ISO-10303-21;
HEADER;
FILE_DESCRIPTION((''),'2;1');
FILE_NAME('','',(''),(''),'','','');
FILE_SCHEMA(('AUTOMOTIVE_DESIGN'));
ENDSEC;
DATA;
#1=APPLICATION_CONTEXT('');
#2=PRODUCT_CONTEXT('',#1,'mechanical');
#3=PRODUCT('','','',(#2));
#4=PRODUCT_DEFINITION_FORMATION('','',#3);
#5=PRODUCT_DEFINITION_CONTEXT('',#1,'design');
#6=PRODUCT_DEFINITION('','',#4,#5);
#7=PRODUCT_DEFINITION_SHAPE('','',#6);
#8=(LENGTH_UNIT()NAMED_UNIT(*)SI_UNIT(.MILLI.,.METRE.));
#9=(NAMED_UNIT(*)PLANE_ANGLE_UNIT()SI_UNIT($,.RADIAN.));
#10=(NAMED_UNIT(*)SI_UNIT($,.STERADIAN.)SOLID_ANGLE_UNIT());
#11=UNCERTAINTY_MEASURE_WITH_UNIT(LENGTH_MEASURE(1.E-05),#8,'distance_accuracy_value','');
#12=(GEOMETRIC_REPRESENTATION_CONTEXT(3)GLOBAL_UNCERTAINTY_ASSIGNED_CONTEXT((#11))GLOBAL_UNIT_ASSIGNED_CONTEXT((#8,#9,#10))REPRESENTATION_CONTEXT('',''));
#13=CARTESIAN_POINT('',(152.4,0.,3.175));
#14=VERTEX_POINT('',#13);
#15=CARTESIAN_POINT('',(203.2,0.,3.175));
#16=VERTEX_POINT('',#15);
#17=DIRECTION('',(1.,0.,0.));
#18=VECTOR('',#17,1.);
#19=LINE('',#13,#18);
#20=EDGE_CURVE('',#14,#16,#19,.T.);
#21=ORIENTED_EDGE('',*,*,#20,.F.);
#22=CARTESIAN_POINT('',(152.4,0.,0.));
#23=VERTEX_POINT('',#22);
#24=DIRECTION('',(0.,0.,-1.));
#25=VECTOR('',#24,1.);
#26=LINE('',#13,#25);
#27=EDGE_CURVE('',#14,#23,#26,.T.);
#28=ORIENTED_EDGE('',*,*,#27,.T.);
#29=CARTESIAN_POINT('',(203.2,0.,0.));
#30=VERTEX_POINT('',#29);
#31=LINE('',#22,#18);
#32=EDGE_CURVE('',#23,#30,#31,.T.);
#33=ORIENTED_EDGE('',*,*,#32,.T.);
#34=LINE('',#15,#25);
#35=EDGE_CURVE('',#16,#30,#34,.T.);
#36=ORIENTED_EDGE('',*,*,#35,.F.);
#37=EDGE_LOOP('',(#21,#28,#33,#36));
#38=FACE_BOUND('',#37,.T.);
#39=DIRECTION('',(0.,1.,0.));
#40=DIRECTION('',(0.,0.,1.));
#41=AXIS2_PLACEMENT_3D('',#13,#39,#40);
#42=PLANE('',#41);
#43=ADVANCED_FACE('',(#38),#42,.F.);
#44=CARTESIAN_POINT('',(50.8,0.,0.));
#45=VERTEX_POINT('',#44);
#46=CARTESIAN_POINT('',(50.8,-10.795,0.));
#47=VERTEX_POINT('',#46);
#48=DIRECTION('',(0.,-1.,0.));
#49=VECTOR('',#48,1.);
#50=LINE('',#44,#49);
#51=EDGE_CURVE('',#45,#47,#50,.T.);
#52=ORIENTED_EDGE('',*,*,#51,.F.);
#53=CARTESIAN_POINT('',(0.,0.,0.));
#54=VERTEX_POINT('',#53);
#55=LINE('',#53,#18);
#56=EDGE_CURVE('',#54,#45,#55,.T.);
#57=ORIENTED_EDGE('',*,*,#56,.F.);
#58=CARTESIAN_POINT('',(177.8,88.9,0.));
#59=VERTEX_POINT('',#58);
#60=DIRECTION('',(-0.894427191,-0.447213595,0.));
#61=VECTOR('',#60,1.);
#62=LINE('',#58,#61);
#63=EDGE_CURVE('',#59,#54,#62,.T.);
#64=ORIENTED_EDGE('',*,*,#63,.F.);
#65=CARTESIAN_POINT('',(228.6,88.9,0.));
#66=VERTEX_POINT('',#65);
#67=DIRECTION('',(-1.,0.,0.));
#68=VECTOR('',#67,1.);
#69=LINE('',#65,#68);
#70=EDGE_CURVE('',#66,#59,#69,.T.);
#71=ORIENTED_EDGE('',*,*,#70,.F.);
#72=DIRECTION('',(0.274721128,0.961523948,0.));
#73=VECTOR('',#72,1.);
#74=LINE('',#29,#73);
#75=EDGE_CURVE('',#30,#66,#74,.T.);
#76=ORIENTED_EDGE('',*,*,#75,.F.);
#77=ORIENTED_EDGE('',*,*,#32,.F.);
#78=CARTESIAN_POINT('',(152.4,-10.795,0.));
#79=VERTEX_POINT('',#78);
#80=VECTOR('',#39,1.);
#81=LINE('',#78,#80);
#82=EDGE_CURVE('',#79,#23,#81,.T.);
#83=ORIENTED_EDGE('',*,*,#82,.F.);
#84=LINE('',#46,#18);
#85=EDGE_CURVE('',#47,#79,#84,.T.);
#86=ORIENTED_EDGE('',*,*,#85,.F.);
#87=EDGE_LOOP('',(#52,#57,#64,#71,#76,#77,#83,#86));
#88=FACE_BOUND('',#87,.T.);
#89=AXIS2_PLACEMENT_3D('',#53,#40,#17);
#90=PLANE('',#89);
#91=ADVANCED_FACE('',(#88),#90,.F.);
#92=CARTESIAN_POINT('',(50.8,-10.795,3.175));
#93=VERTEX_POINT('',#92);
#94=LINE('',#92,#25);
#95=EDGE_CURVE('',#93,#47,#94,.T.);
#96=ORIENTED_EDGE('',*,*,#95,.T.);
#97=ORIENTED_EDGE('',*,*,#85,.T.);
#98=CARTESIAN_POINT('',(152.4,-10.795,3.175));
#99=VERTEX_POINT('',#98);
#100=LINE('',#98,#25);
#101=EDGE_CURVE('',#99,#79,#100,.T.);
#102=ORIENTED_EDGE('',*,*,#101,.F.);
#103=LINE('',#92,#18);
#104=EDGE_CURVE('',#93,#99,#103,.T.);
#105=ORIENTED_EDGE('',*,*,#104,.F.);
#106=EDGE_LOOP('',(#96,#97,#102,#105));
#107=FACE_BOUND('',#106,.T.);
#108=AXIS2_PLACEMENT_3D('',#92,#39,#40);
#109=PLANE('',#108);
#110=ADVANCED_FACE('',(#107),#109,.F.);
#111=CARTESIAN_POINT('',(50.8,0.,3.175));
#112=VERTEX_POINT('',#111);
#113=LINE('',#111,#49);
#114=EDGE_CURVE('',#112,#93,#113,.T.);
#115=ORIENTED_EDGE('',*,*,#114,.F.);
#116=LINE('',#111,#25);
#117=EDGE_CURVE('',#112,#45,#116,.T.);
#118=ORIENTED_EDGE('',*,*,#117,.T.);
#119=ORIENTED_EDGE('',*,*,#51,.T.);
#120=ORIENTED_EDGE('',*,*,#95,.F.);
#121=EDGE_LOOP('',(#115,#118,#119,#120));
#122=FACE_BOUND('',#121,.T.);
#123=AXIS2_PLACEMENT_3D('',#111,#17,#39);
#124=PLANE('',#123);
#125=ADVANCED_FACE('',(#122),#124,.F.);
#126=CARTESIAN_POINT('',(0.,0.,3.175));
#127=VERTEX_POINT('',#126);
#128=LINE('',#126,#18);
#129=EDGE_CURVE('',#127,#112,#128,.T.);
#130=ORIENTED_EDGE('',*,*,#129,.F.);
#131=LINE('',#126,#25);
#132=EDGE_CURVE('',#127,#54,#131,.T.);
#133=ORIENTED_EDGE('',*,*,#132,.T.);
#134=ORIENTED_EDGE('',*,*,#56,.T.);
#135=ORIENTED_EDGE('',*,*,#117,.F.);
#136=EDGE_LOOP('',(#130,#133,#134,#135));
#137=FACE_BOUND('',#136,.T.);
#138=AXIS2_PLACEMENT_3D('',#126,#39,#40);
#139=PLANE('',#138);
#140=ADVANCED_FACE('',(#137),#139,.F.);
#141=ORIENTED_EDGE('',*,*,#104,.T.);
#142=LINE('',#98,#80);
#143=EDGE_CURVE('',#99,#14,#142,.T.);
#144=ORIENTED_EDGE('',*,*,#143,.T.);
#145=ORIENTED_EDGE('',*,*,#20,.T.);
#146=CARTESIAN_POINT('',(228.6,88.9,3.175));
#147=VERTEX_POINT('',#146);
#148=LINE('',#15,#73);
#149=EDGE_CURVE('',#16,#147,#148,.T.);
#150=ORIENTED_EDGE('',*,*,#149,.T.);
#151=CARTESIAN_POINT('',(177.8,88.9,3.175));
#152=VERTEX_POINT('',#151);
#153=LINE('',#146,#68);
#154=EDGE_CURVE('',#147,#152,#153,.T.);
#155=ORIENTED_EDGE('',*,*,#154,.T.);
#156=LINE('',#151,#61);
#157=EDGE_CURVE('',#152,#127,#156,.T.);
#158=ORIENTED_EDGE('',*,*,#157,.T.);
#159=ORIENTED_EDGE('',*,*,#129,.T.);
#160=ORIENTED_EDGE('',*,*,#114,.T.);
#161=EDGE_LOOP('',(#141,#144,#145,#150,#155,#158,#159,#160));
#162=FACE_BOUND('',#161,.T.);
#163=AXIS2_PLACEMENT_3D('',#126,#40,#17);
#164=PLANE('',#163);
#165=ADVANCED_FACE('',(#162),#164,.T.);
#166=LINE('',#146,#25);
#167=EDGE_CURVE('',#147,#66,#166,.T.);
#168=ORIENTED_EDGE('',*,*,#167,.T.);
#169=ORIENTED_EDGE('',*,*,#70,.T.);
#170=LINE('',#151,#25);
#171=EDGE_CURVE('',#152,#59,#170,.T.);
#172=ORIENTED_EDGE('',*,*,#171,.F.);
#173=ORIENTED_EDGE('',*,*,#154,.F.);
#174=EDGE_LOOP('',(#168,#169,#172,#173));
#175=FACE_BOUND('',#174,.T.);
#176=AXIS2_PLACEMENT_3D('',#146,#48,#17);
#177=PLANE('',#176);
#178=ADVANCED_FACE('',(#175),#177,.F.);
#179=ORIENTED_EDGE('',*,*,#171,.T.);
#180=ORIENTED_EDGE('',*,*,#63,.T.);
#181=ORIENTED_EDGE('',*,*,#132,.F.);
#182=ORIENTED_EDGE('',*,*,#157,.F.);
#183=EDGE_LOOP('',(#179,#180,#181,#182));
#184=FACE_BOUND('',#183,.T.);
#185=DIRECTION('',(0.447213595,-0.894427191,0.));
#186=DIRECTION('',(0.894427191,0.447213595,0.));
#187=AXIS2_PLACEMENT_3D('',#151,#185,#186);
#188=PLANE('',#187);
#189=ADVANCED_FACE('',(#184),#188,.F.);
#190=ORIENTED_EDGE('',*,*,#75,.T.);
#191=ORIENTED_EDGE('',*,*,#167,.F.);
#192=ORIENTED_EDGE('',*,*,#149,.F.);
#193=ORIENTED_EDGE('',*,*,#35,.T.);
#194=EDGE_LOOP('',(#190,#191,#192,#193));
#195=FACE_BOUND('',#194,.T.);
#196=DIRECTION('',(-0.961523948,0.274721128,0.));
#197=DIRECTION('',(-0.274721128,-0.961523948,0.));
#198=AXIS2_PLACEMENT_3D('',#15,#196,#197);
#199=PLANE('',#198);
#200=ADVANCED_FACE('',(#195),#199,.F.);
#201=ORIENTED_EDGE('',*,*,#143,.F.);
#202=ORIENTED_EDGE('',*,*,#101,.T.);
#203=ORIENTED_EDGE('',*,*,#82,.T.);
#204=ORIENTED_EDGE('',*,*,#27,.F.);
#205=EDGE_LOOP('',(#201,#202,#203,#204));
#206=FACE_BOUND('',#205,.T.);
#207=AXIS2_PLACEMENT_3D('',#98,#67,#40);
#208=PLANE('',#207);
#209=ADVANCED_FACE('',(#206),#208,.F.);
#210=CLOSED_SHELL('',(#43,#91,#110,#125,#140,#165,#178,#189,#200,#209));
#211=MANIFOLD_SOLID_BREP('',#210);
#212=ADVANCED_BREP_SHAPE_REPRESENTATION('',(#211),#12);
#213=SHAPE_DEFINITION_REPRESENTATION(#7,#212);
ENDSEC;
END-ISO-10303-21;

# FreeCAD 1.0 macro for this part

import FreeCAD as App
import Part
import Sketcher
from FreeCAD import Vector
Q = App.Units.Quantity


def add_polygon(sketch, points):
    """Adds a closed chain of lines whose ends are joined by coincident constraints."""
    first, n = sketch.GeometryCount, len(points)
    for a, b in zip(points, points[1:] + points[:1]):
        sketch.addGeometry(Part.LineSegment(App.Vector(*a, 0), App.Vector(*b, 0)), False)
    for i in range(n):
        sketch.addConstraint(Sketcher.Constraint("Coincident", first + i, 2, first + (i + 1) % n, 1))

doc = App.newDocument("Part")
body = doc.addObject("PartDesign::Body", "Body")

# Sketch on XY plane
sketch1 = body.newObject("Sketcher::SketchObject", "Sketch")
sketch1.AttachmentSupport = (doc.getObject("XY_Plane"), [""])
sketch1.MapMode = "FlatFace"
add_polygon(sketch1, [(0, 0), (51, 0), (51, -11), (152, -11), (152, 0), (203, 0), (229, 89), (178, 89)])  # lines 0-7
sketch1.addConstraint([
    Sketcher.Constraint("Horizontal", 0),
    Sketcher.Constraint("Vertical", 1),
    Sketcher.Constraint("Horizontal", 2),
    Sketcher.Constraint("Vertical", 3),
    Sketcher.Constraint("Horizontal", 4),
    Sketcher.Constraint("Horizontal", 6),
    Sketcher.Constraint("Coincident", 7, 2, -1, 1),
    Sketcher.Constraint("PointOnObject", 3, 2, -1),
    Sketcher.Constraint("Equal", 0, 4),
    Sketcher.Constraint("Equal", 4, 6),
    Sketcher.Constraint("DistanceX", 0, 1, 0, 2, Q("2 in")),
    Sketcher.Constraint("DistanceX", 2, 1, 2, 2, Q("4 in")),
    Sketcher.Constraint("DistanceX", -1, 1, 5, 2, Q("9 in")),
    Sketcher.Constraint("DistanceY", -1, 1, 5, 2, Q("3.5 in")),
    Sketcher.Constraint("DistanceY", 1, 2, 1, 1, Q("0.425 in")),
])
pad1 = body.newObject("PartDesign::Pad", "Pad")
pad1.Profile = sketch1
pad1.Length = Q("0.125 in")

doc.recompute()
